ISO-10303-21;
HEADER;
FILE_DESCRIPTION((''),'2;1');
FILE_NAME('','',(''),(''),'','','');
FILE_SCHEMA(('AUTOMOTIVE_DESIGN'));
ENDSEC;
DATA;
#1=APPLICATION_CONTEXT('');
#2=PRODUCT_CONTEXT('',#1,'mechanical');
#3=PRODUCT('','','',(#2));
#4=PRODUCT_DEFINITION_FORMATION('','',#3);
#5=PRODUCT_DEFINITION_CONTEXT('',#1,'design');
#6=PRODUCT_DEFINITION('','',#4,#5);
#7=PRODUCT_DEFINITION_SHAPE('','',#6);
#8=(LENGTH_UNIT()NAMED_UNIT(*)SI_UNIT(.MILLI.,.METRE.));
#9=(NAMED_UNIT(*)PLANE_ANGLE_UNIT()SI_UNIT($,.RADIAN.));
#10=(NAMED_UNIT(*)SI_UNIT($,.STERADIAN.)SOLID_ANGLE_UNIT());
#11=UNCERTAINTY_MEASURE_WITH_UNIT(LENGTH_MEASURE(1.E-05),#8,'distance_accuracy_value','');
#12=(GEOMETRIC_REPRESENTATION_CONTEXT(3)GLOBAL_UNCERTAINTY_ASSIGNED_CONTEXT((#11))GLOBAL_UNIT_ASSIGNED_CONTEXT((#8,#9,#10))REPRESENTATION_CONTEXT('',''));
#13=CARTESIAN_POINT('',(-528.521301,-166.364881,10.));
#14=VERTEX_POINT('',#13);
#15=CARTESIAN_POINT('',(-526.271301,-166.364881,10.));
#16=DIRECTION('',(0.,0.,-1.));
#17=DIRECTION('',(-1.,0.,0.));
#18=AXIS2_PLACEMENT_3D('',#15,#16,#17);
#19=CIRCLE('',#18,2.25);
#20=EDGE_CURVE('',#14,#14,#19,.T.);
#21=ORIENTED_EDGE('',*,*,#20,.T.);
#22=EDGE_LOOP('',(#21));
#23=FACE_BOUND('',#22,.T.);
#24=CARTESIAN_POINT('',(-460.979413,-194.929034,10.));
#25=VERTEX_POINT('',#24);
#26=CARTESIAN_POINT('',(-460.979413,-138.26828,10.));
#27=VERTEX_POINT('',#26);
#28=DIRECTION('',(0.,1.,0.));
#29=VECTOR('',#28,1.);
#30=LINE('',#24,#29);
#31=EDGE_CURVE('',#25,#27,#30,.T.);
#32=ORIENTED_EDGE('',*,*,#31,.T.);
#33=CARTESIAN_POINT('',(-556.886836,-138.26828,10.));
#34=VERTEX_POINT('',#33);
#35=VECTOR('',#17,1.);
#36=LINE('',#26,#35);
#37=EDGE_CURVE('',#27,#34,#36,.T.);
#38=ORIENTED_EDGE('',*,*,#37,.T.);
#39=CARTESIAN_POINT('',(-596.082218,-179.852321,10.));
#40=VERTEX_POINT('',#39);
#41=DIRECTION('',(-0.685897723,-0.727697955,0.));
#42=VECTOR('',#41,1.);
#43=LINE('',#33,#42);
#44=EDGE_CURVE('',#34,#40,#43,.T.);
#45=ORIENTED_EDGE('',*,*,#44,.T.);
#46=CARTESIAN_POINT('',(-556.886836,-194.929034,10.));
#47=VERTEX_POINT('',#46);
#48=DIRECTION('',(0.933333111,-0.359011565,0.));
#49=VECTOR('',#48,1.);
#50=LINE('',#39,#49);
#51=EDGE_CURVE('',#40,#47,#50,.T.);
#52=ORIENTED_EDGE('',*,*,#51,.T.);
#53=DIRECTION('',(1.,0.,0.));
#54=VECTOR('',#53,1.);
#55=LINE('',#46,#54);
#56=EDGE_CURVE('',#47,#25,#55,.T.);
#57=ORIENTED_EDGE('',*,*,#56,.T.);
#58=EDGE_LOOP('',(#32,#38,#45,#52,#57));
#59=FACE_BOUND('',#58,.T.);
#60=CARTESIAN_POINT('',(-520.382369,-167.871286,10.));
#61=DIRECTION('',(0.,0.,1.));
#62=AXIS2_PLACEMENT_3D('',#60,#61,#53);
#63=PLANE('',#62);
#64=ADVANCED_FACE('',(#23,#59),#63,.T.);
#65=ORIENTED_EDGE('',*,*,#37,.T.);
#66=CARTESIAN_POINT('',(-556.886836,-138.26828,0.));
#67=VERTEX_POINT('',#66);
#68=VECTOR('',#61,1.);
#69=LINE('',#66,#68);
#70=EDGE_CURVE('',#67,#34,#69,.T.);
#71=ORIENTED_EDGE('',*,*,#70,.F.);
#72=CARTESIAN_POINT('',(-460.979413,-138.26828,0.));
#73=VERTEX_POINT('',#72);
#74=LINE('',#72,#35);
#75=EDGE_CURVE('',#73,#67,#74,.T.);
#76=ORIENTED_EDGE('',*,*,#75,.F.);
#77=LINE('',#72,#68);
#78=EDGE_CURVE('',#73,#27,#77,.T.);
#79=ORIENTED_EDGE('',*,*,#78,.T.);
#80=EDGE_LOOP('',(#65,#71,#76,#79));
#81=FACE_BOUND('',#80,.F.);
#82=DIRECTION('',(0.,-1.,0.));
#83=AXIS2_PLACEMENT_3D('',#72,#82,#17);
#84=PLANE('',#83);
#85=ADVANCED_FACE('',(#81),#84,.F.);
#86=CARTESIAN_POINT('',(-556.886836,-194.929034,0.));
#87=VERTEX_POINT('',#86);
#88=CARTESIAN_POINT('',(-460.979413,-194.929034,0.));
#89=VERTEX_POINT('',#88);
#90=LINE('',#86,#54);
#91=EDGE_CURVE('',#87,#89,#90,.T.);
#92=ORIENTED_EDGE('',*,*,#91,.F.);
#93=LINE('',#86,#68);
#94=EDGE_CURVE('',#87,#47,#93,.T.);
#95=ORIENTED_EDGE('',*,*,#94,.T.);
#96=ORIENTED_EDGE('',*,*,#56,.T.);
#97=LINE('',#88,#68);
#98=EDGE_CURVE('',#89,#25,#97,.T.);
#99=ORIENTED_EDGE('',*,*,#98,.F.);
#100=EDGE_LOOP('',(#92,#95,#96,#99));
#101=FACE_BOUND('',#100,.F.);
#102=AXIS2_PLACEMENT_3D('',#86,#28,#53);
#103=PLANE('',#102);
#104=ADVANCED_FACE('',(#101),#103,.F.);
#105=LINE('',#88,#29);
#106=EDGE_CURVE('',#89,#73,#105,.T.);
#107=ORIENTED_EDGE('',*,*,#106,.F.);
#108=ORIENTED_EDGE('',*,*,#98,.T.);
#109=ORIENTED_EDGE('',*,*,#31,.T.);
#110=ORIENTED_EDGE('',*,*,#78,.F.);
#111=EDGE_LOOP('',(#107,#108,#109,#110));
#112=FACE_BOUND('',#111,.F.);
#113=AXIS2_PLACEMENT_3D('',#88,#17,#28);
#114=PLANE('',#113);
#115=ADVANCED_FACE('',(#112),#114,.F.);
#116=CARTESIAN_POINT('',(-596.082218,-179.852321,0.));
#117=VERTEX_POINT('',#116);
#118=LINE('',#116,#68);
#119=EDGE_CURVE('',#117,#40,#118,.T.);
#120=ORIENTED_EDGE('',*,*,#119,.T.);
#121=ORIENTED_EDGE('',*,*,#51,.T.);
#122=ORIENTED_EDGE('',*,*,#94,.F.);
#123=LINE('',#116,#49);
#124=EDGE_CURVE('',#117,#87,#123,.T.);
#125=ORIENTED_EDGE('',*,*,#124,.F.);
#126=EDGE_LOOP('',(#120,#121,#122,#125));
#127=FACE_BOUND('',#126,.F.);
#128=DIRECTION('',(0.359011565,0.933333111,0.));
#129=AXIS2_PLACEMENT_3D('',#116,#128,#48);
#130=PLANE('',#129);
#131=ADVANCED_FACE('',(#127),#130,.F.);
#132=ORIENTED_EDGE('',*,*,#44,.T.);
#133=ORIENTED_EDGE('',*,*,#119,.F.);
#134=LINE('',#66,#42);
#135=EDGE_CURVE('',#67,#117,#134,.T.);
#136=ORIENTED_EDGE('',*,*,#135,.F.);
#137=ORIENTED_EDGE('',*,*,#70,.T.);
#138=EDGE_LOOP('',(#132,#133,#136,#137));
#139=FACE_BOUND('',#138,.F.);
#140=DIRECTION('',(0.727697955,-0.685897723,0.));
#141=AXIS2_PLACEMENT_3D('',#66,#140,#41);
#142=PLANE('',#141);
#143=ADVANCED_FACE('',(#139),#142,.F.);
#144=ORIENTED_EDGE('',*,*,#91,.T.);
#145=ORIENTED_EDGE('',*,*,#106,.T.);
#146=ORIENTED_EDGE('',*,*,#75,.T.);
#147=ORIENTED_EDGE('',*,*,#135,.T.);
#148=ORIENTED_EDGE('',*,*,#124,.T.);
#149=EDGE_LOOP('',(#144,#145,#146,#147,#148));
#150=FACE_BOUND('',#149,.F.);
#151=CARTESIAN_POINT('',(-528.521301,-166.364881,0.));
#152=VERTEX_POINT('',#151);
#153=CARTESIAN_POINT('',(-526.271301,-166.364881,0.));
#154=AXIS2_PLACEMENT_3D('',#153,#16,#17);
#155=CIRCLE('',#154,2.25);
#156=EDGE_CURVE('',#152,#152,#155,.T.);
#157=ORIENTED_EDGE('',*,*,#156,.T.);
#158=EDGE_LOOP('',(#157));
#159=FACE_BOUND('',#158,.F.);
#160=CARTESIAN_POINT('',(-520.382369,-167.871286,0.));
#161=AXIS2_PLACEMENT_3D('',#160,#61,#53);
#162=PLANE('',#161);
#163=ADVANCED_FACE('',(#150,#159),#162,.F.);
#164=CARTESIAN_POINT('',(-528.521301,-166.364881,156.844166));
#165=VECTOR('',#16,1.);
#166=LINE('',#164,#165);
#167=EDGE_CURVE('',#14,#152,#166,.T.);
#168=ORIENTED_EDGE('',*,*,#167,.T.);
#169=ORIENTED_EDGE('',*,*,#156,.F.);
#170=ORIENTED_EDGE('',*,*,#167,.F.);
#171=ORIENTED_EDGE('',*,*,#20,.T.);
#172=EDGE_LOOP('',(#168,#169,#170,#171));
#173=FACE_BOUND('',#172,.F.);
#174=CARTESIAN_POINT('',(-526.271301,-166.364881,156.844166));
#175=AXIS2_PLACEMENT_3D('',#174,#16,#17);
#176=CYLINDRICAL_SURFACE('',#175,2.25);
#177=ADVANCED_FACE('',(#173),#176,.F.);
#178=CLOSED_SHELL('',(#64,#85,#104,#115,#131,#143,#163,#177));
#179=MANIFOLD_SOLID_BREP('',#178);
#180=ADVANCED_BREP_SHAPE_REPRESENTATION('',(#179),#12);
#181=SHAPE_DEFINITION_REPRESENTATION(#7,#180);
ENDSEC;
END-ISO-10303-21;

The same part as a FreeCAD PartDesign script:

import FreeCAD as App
import Part
import Sketcher
from FreeCAD import Vector

doc = App.newDocument("Part")
body = doc.addObject("PartDesign::Body", "Body")

sketch1 = doc.addObject("Sketcher::SketchObject", "Sketch")
body.addObject(sketch1)
sketch1.AttachmentSupport = (doc.XY_Plane, [""])
sketch1.MapMode = "FlatFace"
sketch1.addGeometry([
    Part.LineSegment(Vector(-460.979413, -138.26828, 0), Vector(-556.886836, -138.26828, 0)),
    Part.LineSegment(Vector(-556.886836, -138.26828, 0), Vector(-596.082218, -179.852321, 0)),
    Part.LineSegment(Vector(-596.082218, -179.852321, 0), Vector(-556.886836, -194.929034, 0)),
    Part.LineSegment(Vector(-556.886836, -194.929034, 0), Vector(-460.979413, -194.929034, 0)),
    Part.LineSegment(Vector(-460.979413, -194.929034, 0), Vector(-460.979413, -138.26828, 0)),
], False)
sketch1.addConstraint([
    Sketcher.Constraint("Coincident", 0, 2, 1, 1),
    Sketcher.Constraint("Coincident", 1, 2, 2, 1),
    Sketcher.Constraint("Coincident", 2, 2, 3, 1),
    Sketcher.Constraint("Coincident", 3, 2, 4, 1),
    Sketcher.Constraint("Coincident", 4, 2, 0, 1),
    Sketcher.Constraint("Horizontal", 0),
    Sketcher.Constraint("Horizontal", 3),
    Sketcher.Constraint("Vertical", 4),
    Sketcher.Constraint("Vertical", 0, 2, 2, 2),
    Sketcher.Constraint("DistanceX", 0, 2, 0, 1, 95.907424),
    Sketcher.Constraint("DistanceY", 4, 1, 4, 2, 56.660754),
    Sketcher.Constraint("DistanceY", 0, 2, -1, 1, 138.26828),
    Sketcher.Constraint("DistanceX", 1, 2, -1, 1, 596.082218),
    Sketcher.Constraint("DistanceY", 1, 2, -1, 1, 179.852321),
    Sketcher.Constraint("Distance", 1, 57.144645),
])
pad1 = doc.addObject("PartDesign::Pad", "Pad")
body.addObject(pad1)
pad1.Profile = sketch1
pad1.Length = 10

sketch2 = doc.addObject("Sketcher::SketchObject", "Sketch001")
body.addObject(sketch2)
sketch2.AttachmentSupport = (doc.XY_Plane, [""])
sketch2.MapMode = "FlatFace"
sketch2.AttachmentOffset = App.Placement(Vector(0, 0, 10), App.Rotation())
sketch2.addGeometry(Part.Circle(Vector(-526.271301, -166.364881, 0), Vector(0, 0, 1), 2.25), False)
sketch2.addConstraint([
    Sketcher.Constraint("Diameter", 0, 4.5),
    Sketcher.Constraint("DistanceX", 0, 3, -1, 1, 526.271301),
    Sketcher.Constraint("DistanceY", 0, 3, -1, 1, 166.364881),
])
doc.recompute()
hole = doc.addObject("PartDesign::Hole", "Hole")
body.addObject(hole)
hole.Profile = sketch2
hole.ThreadType = "None"
hole.Diameter = 4.5
hole.DepthType = "ThroughAll"

doc.recompute()
